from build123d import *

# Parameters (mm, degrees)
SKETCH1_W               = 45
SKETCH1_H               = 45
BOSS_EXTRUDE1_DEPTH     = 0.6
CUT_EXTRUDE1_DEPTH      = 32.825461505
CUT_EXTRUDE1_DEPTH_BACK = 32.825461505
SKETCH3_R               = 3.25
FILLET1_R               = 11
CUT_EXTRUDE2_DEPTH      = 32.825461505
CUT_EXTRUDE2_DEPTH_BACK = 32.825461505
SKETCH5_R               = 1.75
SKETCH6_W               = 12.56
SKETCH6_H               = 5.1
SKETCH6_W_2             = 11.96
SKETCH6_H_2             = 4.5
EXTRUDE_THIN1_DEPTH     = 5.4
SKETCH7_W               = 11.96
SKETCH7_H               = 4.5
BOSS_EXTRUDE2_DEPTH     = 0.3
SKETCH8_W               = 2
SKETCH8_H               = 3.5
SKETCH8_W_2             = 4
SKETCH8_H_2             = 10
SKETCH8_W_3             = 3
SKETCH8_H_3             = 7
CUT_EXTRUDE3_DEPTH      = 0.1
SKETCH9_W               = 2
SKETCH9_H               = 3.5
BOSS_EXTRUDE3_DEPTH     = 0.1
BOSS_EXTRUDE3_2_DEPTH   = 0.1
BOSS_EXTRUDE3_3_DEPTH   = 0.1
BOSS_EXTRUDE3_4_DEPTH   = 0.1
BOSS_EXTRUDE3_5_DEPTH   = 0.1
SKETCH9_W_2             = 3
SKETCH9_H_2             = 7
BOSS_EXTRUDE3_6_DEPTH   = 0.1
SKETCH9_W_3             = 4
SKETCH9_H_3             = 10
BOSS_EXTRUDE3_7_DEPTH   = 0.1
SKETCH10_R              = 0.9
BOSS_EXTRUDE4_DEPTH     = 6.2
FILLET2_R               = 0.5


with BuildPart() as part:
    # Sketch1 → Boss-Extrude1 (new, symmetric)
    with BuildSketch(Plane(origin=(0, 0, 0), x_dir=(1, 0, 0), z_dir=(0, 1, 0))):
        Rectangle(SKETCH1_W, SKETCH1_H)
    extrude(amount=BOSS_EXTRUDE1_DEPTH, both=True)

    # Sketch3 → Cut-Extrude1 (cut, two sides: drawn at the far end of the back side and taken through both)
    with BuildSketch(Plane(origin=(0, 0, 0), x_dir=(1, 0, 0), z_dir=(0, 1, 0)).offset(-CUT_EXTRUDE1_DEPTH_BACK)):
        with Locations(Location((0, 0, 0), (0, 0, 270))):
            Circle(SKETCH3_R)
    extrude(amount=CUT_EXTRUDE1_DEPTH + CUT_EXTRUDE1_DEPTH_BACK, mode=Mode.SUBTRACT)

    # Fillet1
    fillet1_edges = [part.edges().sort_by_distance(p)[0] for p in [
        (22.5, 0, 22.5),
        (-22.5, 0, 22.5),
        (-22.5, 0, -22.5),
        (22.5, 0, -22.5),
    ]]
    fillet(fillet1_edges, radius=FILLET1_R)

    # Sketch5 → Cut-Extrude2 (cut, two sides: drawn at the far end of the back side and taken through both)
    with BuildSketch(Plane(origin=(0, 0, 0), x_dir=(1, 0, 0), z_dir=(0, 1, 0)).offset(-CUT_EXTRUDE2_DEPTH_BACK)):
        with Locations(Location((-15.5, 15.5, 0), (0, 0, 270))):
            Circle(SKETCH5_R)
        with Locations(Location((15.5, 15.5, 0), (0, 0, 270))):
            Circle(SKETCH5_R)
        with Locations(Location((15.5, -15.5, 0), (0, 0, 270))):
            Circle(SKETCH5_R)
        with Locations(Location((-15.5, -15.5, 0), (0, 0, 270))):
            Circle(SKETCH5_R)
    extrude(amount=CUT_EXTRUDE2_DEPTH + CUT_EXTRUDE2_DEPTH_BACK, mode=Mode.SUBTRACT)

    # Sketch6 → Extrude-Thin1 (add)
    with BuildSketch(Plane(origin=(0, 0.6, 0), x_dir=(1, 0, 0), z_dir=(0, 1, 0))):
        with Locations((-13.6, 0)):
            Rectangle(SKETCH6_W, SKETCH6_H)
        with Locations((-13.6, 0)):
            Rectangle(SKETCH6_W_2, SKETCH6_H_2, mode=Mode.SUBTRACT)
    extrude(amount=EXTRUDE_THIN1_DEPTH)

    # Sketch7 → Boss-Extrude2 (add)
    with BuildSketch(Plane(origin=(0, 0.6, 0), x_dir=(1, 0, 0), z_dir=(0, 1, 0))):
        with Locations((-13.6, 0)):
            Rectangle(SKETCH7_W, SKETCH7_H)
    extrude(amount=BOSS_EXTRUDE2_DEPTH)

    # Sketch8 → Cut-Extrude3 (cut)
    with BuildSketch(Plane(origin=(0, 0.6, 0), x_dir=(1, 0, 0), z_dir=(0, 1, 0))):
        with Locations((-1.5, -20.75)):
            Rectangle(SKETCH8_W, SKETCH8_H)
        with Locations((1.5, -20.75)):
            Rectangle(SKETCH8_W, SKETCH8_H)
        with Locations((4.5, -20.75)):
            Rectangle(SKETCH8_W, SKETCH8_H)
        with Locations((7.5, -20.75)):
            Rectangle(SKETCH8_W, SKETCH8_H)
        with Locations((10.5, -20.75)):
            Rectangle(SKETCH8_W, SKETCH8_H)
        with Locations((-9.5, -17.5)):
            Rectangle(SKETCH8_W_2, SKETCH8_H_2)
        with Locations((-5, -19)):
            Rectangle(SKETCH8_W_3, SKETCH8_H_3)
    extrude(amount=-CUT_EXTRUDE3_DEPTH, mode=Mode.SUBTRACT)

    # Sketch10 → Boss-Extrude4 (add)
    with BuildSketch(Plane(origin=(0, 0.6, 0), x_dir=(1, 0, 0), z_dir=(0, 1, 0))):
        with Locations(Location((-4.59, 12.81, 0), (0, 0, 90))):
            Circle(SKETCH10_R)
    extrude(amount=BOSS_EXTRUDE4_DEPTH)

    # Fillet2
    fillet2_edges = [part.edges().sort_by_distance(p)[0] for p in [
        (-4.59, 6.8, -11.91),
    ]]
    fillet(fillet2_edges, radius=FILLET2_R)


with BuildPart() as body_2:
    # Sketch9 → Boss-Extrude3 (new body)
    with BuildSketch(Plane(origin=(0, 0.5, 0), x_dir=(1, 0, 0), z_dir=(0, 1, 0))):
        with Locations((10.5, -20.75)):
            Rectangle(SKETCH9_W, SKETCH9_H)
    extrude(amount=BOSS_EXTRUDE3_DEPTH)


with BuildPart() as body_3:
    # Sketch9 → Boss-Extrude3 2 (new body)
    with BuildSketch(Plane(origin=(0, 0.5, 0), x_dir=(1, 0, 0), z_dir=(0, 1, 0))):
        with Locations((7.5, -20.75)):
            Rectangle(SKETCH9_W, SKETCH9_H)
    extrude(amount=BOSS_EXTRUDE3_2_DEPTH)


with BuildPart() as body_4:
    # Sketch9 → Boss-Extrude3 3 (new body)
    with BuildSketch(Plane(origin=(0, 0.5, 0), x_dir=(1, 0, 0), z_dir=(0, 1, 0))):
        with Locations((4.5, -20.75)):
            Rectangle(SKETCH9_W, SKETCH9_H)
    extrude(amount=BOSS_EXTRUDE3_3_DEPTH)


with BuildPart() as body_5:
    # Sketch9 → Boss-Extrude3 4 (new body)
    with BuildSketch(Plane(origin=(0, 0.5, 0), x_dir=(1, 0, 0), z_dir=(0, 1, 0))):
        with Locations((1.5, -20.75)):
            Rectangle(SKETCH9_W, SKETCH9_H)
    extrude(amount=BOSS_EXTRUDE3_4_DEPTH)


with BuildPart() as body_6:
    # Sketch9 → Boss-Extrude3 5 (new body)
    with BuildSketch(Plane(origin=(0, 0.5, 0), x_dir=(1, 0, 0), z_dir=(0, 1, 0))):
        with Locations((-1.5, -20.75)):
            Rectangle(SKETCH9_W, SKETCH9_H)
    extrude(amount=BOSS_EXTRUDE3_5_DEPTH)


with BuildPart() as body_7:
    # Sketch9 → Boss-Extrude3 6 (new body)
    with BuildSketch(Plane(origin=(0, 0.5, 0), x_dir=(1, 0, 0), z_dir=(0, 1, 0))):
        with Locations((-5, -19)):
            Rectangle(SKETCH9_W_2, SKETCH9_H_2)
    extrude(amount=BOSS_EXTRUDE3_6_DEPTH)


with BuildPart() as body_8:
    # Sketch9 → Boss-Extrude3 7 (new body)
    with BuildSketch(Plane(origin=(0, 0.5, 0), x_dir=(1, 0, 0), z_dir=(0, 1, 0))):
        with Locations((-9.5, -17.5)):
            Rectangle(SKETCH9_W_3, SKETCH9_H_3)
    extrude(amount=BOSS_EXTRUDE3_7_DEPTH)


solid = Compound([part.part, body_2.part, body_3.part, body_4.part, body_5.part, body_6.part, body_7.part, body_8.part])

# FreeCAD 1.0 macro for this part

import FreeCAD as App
import Part
import Sketcher

V = App.Vector
Q = App.Units.Quantity


def edges_at(feature, points):
    """Names of the edges that pass closest to the given points."""
    edges = feature.Shape.Edges
    near = lambda p: min(range(len(edges)), key=lambda i: edges[i].distToShape(Part.Vertex(*p))[0])
    return sorted({f"Edge{near(p) + 1}" for p in points})

doc = App.newDocument("Part")
body = doc.addObject("PartDesign::Body", "Body")

sketch1 = body.newObject("Sketcher::SketchObject", "Sketch")
sketch1.AttachmentSupport = (doc.getObject("XZ_Plane"), [""])
sketch1.MapMode = "FlatFace"
sketch1.addGeometry([
    Part.LineSegment(V(-22.5, -22.5, 0), V(-22.5, 22.5, 0)),
    Part.LineSegment(V(-22.5, 22.5, 0), V(22.5, 22.5, 0)),
    Part.LineSegment(V(22.5, 22.5, 0), V(22.5, -22.5, 0)),
    Part.LineSegment(V(22.5, -22.5, 0), V(-22.5, -22.5, 0)),
], False)
sketch1.addConstraint([
    Sketcher.Constraint("Coincident", 0, 2, 1, 1),
    Sketcher.Constraint("Coincident", 1, 2, 2, 1),
    Sketcher.Constraint("Coincident", 2, 2, 3, 1),
    Sketcher.Constraint("Coincident", 3, 2, 0, 1),
    Sketcher.Constraint("Vertical", 0),
    Sketcher.Constraint("Horizontal", 1),
    Sketcher.Constraint("Vertical", 2),
    Sketcher.Constraint("Horizontal", 3),
    Sketcher.Constraint("Symmetric", 0, 2, 2, 2, -1, 1),
    Sketcher.Constraint("Equal", 3, 0),
    Sketcher.Constraint("DistanceX", 1, 1, 1, 2, Q("45 mm")),
])
pad1 = body.newObject("PartDesign::Pad", "Pad")
pad1.Profile = sketch1
pad1.Length = 1.2
pad1.Midplane = True

sketch2 = body.newObject("Sketcher::SketchObject", "Sketch001")
sketch2.AttachmentSupport = (doc.getObject("XZ_Plane"), [""])
sketch2.MapMode = "FlatFace"
sketch2.addGeometry(Part.Circle(V(0, 0, 0), V(0, 0, 1), 3.25), False)
sketch2.addConstraint([
    Sketcher.Constraint("Coincident", 0, 3, -1, 1),
    Sketcher.Constraint("Diameter", 0, Q("6.5 mm")),
])
pocket1 = body.newObject("PartDesign::Pocket", "Pocket")
pocket1.Profile = sketch2
pocket1.Type = "ThroughAll"
pocket1.Midplane = True
doc.recompute()

fillet = body.newObject("PartDesign::Fillet", "Fillet")
fillet.Base = (pocket1, edges_at(pocket1, [
    (22.5, 0, 22.5),
    (-22.5, 0, 22.5),
    (-22.5, 0, -22.5),
    (22.5, 0, -22.5),
]))
fillet.Radius = 11

sketch3 = body.newObject("Sketcher::SketchObject", "Sketch002")
sketch3.AttachmentSupport = (doc.getObject("XZ_Plane"), [""])
sketch3.MapMode = "FlatFace"
sketch3.addGeometry([
    Part.Circle(V(-15.5, -15.5, 0), V(0, 0, 1), 1.75),
    Part.Circle(V(15.5, -15.5, 0), V(0, 0, 1), 1.75),
    Part.Circle(V(15.5, 15.5, 0), V(0, 0, 1), 1.75),
    Part.Circle(V(-15.5, 15.5, 0), V(0, 0, 1), 1.75),
], False)
sketch3.addConstraint([
    Sketcher.Constraint("Equal", 0, 1),
    Sketcher.Constraint("Equal", 1, 2),
    Sketcher.Constraint("Equal", 2, 3),
    Sketcher.Constraint("Symmetric", 0, 3, 2, 3, -1, 1),
    Sketcher.Constraint("Symmetric", 1, 3, 3, 3, -1, 1),
    Sketcher.Constraint("Symmetric", 0, 3, 1, 3, -2),
    Sketcher.Constraint("Diameter", 0, Q("3.5 mm")),
    Sketcher.Constraint("DistanceX", 0, 3, 1, 3, Q("31 mm")),
    Sketcher.Constraint("DistanceY", 1, 3, 2, 3, Q("31 mm")),
])
pocket2 = body.newObject("PartDesign::Pocket", "Pocket001")
pocket2.Profile = sketch3
pocket2.Type = "ThroughAll"
pocket2.Midplane = True

sketch4 = body.newObject("Sketcher::SketchObject", "Sketch003")
sketch4.AttachmentSupport = (doc.getObject("XZ_Plane"), [""])
sketch4.MapMode = "FlatFace"
sketch4.AttachmentOffset = App.Placement(V(0, 0, -0.6), App.Rotation())
sketch4.addGeometry([
    Part.LineSegment(V(-19.88, -2.55, 0), V(-19.88, 2.55, 0)),
    Part.LineSegment(V(-19.88, 2.55, 0), V(-7.32, 2.55, 0)),
    Part.LineSegment(V(-7.32, 2.55, 0), V(-7.32, -2.55, 0)),
    Part.LineSegment(V(-7.32, -2.55, 0), V(-19.88, -2.55, 0)),
    Part.LineSegment(V(-7.62, 2.25, 0), V(-19.58, 2.25, 0)),
    Part.LineSegment(V(-19.58, 2.25, 0), V(-19.58, -2.25, 0)),
    Part.LineSegment(V(-19.58, -2.25, 0), V(-7.62, -2.25, 0)),
    Part.LineSegment(V(-7.62, -2.25, 0), V(-7.62, 2.25, 0)),
], False)
sketch4.addConstraint([
    Sketcher.Constraint("Coincident", 0, 2, 1, 1),
    Sketcher.Constraint("Coincident", 1, 2, 2, 1),
    Sketcher.Constraint("Coincident", 2, 2, 3, 1),
    Sketcher.Constraint("Coincident", 3, 2, 0, 1),
    Sketcher.Constraint("Coincident", 4, 2, 5, 1),
    Sketcher.Constraint("Coincident", 5, 2, 6, 1),
    Sketcher.Constraint("Coincident", 6, 2, 7, 1),
    Sketcher.Constraint("Coincident", 7, 2, 4, 1),
    Sketcher.Constraint("Vertical", 0),
    Sketcher.Constraint("Horizontal", 1),
    Sketcher.Constraint("Vertical", 2),
    Sketcher.Constraint("Horizontal", 3),
    Sketcher.Constraint("Horizontal", 4),
    Sketcher.Constraint("Vertical", 5),
    Sketcher.Constraint("Horizontal", 6),
    Sketcher.Constraint("Vertical", 7),
    Sketcher.Constraint("DistanceY", 0, 1, 0, 2, Q("5.1 mm")),
    Sketcher.Constraint("DistanceY", 5, 2, 5, 1, Q("4.5 mm")),
    Sketcher.Constraint("DistanceX", 1, 1, 1, 2, Q("12.56 mm")),
    Sketcher.Constraint("DistanceX", 4, 2, 4, 1, Q("11.96 mm")),
    Sketcher.Constraint("DistanceX", 0, 2, 4, 2, Q("0.3 mm")),
    Sketcher.Constraint("DistanceY", 4, 2, 0, 2, Q("0.3 mm")),
    Sketcher.Constraint("DistanceX", 0, 2, -1, 1, Q("19.88 mm")),
    Sketcher.Constraint("DistanceY", -1, 1, 0, 2, Q("2.55 mm")),
])
pad2 = body.newObject("PartDesign::Pad", "Pad001")
pad2.Profile = sketch4
pad2.Length = 5.4
pad2.Reversed = True

sketch5 = body.newObject("Sketcher::SketchObject", "Sketch004")
sketch5.AttachmentSupport = (doc.getObject("XZ_Plane"), [""])
sketch5.MapMode = "FlatFace"
sketch5.AttachmentOffset = App.Placement(V(0, 0, -0.6), App.Rotation())
sketch5.addGeometry([
    Part.LineSegment(V(-19.58, -2.25, 0), V(-19.58, 2.25, 0)),
    Part.LineSegment(V(-19.58, 2.25, 0), V(-7.62, 2.25, 0)),
    Part.LineSegment(V(-7.62, 2.25, 0), V(-7.62, -2.25, 0)),
    Part.LineSegment(V(-7.62, -2.25, 0), V(-19.58, -2.25, 0)),
], False)
sketch5.addConstraint([
    Sketcher.Constraint("Coincident", 0, 2, 1, 1),
    Sketcher.Constraint("Coincident", 1, 2, 2, 1),
    Sketcher.Constraint("Coincident", 2, 2, 3, 1),
    Sketcher.Constraint("Coincident", 3, 2, 0, 1),
    Sketcher.Constraint("Vertical", 0),
    Sketcher.Constraint("Horizontal", 1),
    Sketcher.Constraint("Vertical", 2),
    Sketcher.Constraint("Horizontal", 3),
    Sketcher.Constraint("DistanceY", 0, 1, 0, 2, Q("4.5 mm")),
    Sketcher.Constraint("DistanceX", 1, 1, 1, 2, Q("11.96 mm")),
    Sketcher.Constraint("DistanceX", 0, 2, -1, 1, Q("19.58 mm")),
    Sketcher.Constraint("DistanceY", -1, 1, 0, 2, Q("2.25 mm")),
])
pad3 = body.newObject("PartDesign::Pad", "Pad002")
pad3.Profile = sketch5
pad3.Length = 0.3
pad3.Reversed = True

sketch6 = body.newObject("Sketcher::SketchObject", "Sketch005")
sketch6.AttachmentSupport = (doc.getObject("XZ_Plane"), [""])
sketch6.MapMode = "FlatFace"
sketch6.AttachmentOffset = App.Placement(V(0, 0, -0.6), App.Rotation())
sketch6.addGeometry([
    Part.LineSegment(V(-2.5, 19, 0), V(-2.5, 22.5, 0)),
    Part.LineSegment(V(-2.5, 22.5, 0), V(-0.5, 22.5, 0)),
    Part.LineSegment(V(-0.5, 22.5, 0), V(-0.5, 19, 0)),
    Part.LineSegment(V(-0.5, 19, 0), V(-2.5, 19, 0)),
    Part.LineSegment(V(0.5, 19, 0), V(0.5, 22.5, 0)),
    Part.LineSegment(V(0.5, 22.5, 0), V(2.5, 22.5, 0)),
    Part.LineSegment(V(2.5, 22.5, 0), V(2.5, 19, 0)),
    Part.LineSegment(V(2.5, 19, 0), V(0.5, 19, 0)),
    Part.LineSegment(V(3.5, 19, 0), V(3.5, 22.5, 0)),
    Part.LineSegment(V(3.5, 22.5, 0), V(5.5, 22.5, 0)),
    Part.LineSegment(V(5.5, 22.5, 0), V(5.5, 19, 0)),
    Part.LineSegment(V(5.5, 19, 0), V(3.5, 19, 0)),
    Part.LineSegment(V(6.5, 19, 0), V(6.5, 22.5, 0)),
    Part.LineSegment(V(6.5, 22.5, 0), V(8.5, 22.5, 0)),
    Part.LineSegment(V(8.5, 22.5, 0), V(8.5, 19, 0)),
    Part.LineSegment(V(8.5, 19, 0), V(6.5, 19, 0)),
    Part.LineSegment(V(9.5, 19, 0), V(9.5, 22.5, 0)),
    Part.LineSegment(V(9.5, 22.5, 0), V(11.5, 22.5, 0)),
    Part.LineSegment(V(11.5, 22.5, 0), V(11.5, 19, 0)),
    Part.LineSegment(V(11.5, 19, 0), V(9.5, 19, 0)),
    Part.LineSegment(V(-11.5, 12.5, 0), V(-11.5, 22.5, 0)),
    Part.LineSegment(V(-11.5, 22.5, 0), V(-7.5, 22.5, 0)),
    Part.LineSegment(V(-7.5, 22.5, 0), V(-7.5, 12.5, 0)),
    Part.LineSegment(V(-7.5, 12.5, 0), V(-11.5, 12.5, 0)),
    Part.LineSegment(V(-6.5, 15.5, 0), V(-6.5, 22.5, 0)),
    Part.LineSegment(V(-6.5, 22.5, 0), V(-3.5, 22.5, 0)),
    Part.LineSegment(V(-3.5, 22.5, 0), V(-3.5, 15.5, 0)),
    Part.LineSegment(V(-3.5, 15.5, 0), V(-6.5, 15.5, 0)),
], False)
sketch6.addConstraint([
    Sketcher.Constraint("Coincident", 0, 2, 1, 1),
    Sketcher.Constraint("Coincident", 1, 2, 2, 1),
    Sketcher.Constraint("Coincident", 2, 2, 3, 1),
    Sketcher.Constraint("Coincident", 3, 2, 0, 1),
    Sketcher.Constraint("Coincident", 4, 2, 5, 1),
    Sketcher.Constraint("Coincident", 5, 2, 6, 1),
    Sketcher.Constraint("Coincident", 6, 2, 7, 1),
    Sketcher.Constraint("Coincident", 7, 2, 4, 1),
    Sketcher.Constraint("Coincident", 8, 2, 9, 1),
    Sketcher.Constraint("Coincident", 9, 2, 10, 1),
    Sketcher.Constraint("Coincident", 10, 2, 11, 1),
    Sketcher.Constraint("Coincident", 11, 2, 8, 1),
    Sketcher.Constraint("Coincident", 12, 2, 13, 1),
    Sketcher.Constraint("Coincident", 13, 2, 14, 1),
    Sketcher.Constraint("Coincident", 14, 2, 15, 1),
    Sketcher.Constraint("Coincident", 15, 2, 12, 1),
    Sketcher.Constraint("Coincident", 16, 2, 17, 1),
    Sketcher.Constraint("Coincident", 17, 2, 18, 1),
    Sketcher.Constraint("Coincident", 18, 2, 19, 1),
    Sketcher.Constraint("Coincident", 19, 2, 16, 1),
    Sketcher.Constraint("Coincident", 20, 2, 21, 1),
    Sketcher.Constraint("Coincident", 21, 2, 22, 1),
    Sketcher.Constraint("Coincident", 22, 2, 23, 1),
    Sketcher.Constraint("Coincident", 23, 2, 20, 1),
    Sketcher.Constraint("Coincident", 24, 2, 25, 1),
    Sketcher.Constraint("Coincident", 25, 2, 26, 1),
    Sketcher.Constraint("Coincident", 26, 2, 27, 1),
    Sketcher.Constraint("Coincident", 27, 2, 24, 1),
    Sketcher.Constraint("Vertical", 0),
    Sketcher.Constraint("Horizontal", 1),
    Sketcher.Constraint("Vertical", 2),
    Sketcher.Constraint("Horizontal", 3),
    Sketcher.Constraint("Vertical", 4),
    Sketcher.Constraint("Horizontal", 5),
    Sketcher.Constraint("Vertical", 6),
    Sketcher.Constraint("Horizontal", 7),
    Sketcher.Constraint("Vertical", 8),
    Sketcher.Constraint("Horizontal", 9),
    Sketcher.Constraint("Vertical", 10),
    Sketcher.Constraint("Horizontal", 11),
    Sketcher.Constraint("Vertical", 12),
    Sketcher.Constraint("Horizontal", 13),
    Sketcher.Constraint("Vertical", 14),
    Sketcher.Constraint("Horizontal", 15),
    Sketcher.Constraint("Vertical", 16),
    Sketcher.Constraint("Horizontal", 17),
    Sketcher.Constraint("Vertical", 18),
    Sketcher.Constraint("Horizontal", 19),
    Sketcher.Constraint("Vertical", 20),
    Sketcher.Constraint("Horizontal", 21),
    Sketcher.Constraint("Vertical", 22),
    Sketcher.Constraint("Horizontal", 23),
    Sketcher.Constraint("Vertical", 24),
    Sketcher.Constraint("Horizontal", 25),
    Sketcher.Constraint("Vertical", 26),
    Sketcher.Constraint("Horizontal", 27),
    Sketcher.Constraint("Symmetric", 1, 2, 4, 2, -2),
    Sketcher.Constraint("Symmetric", 3, 2, 6, 2, -2),
    Sketcher.Constraint("Symmetric", 17, 2, 20, 2, -2),
    Sketcher.Constraint("Symmetric", 12, 2, 24, 2, -2),
    Sketcher.Constraint("Symmetric", 8, 2, 25, 2, -2),
    Sketcher.Constraint("Horizontal", 5, 2, 8, 2),
    Sketcher.Constraint("Horizontal", 7, 2, 10, 2),
    Sketcher.Constraint("Horizontal", 11, 2, 14, 2),
    Sketcher.Constraint("Horizontal", 13, 2, 16, 2),
    Sketcher.Constraint("Horizontal", 15, 2, 18, 2),
    Sketcher.Constraint("Equal", 7, 9),
    Sketcher.Constraint("Equal", 11, 13),
    Sketcher.Constraint("Equal", 15, 17),
    Sketcher.Constraint("DistanceX", 1, 1, 1, 2, Q("2 mm")),
    Sketcher.Constraint("DistanceX", 21, 1, 21, 2, Q("4 mm")),
    Sketcher.Constraint("DistanceX", 25, 1, 25, 2, Q("3 mm")),
    Sketcher.Constraint("DistanceY", 20, 1, 20, 2, Q("10 mm")),
    Sketcher.Constraint("DistanceY", 24, 1, 24, 2, Q("7 mm")),
    Sketcher.Constraint("DistanceY", 0, 1, 0, 2, Q("3.5 mm")),
    Sketcher.Constraint("DistanceY", -1, 1, 2, 2, Q("19 mm")),
    Sketcher.Constraint("DistanceX", 1, 2, 4, 2, Q("1 mm")),
    Sketcher.Constraint("DistanceX", 5, 2, 8, 2, Q("1 mm")),
    Sketcher.Constraint("DistanceX", 13, 2, 16, 2, Q("1 mm")),
])
pocket3 = body.newObject("PartDesign::Pocket", "Pocket002")
pocket3.Profile = sketch6
pocket3.Length = 0.1
pocket3.Reversed = True

sketch7 = body.newObject("Sketcher::SketchObject", "Sketch006")
sketch7.AttachmentSupport = (doc.getObject("XZ_Plane"), [""])
sketch7.MapMode = "FlatFace"
sketch7.AttachmentOffset = App.Placement(V(0, 0, -0.6), App.Rotation())
sketch7.addGeometry(Part.Circle(V(-4.59, -12.81, 0), V(0, 0, 1), 0.9), False)
sketch7.addConstraint([
    Sketcher.Constraint("Diameter", 0, Q("1.8 mm")),
    Sketcher.Constraint("DistanceX", 0, 3, -1, 1, Q("4.59 mm")),
    Sketcher.Constraint("DistanceY", 0, 3, -1, 1, Q("12.81 mm")),
])
pad4 = body.newObject("PartDesign::Pad", "Pad003")
pad4.Profile = sketch7
pad4.Length = 6.2
pad4.Reversed = True
doc.recompute()

fillet2 = body.newObject("PartDesign::Fillet", "Fillet001")
fillet2.Base = (pad4, edges_at(pad4, [(-4.59, 6.8, -11.91)]))
fillet2.Radius = 0.5
body2 = doc.addObject("PartDesign::Body", "Body001")

sketch8 = body2.newObject("Sketcher::SketchObject", "Sketch007")
sketch8.AttachmentSupport = (doc.getObject("XZ_Plane001"), [""])
sketch8.MapMode = "FlatFace"
sketch8.AttachmentOffset = App.Placement(V(0, 0, -0.5), App.Rotation())
sketch8.addGeometry([
    Part.LineSegment(V(9.5, 19, 0), V(9.5, 22.5, 0)),
    Part.LineSegment(V(9.5, 22.5, 0), V(11.5, 22.5, 0)),
    Part.LineSegment(V(11.5, 22.5, 0), V(11.5, 19, 0)),
    Part.LineSegment(V(11.5, 19, 0), V(9.5, 19, 0)),
], False)
sketch8.addConstraint([
    Sketcher.Constraint("Coincident", 0, 2, 1, 1),
    Sketcher.Constraint("Coincident", 1, 2, 2, 1),
    Sketcher.Constraint("Coincident", 2, 2, 3, 1),
    Sketcher.Constraint("Coincident", 3, 2, 0, 1),
    Sketcher.Constraint("Vertical", 0),
    Sketcher.Constraint("Horizontal", 1),
    Sketcher.Constraint("Vertical", 2),
    Sketcher.Constraint("Horizontal", 3),
    Sketcher.Constraint("DistanceX", 1, 1, 1, 2, Q("2 mm")),
    Sketcher.Constraint("DistanceY", 0, 1, 0, 2, Q("3.5 mm")),
    Sketcher.Constraint("DistanceY", -1, 1, 2, 2, Q("19 mm")),
    Sketcher.Constraint("DistanceX", -1, 1, 0, 2, Q("9.5 mm")),
])
pad5 = body2.newObject("PartDesign::Pad", "Pad004")
pad5.Profile = sketch8
pad5.Length = 0.1
pad5.Reversed = True
body3 = doc.addObject("PartDesign::Body", "Body002")

sketch9 = body3.newObject("Sketcher::SketchObject", "Sketch008")
sketch9.AttachmentSupport = (doc.getObject("XZ_Plane002"), [""])
sketch9.MapMode = "FlatFace"
sketch9.AttachmentOffset = App.Placement(V(0, 0, -0.5), App.Rotation())
sketch9.addGeometry([
    Part.LineSegment(V(6.5, 19, 0), V(6.5, 22.5, 0)),
    Part.LineSegment(V(6.5, 22.5, 0), V(8.5, 22.5, 0)),
    Part.LineSegment(V(8.5, 22.5, 0), V(8.5, 19, 0)),
    Part.LineSegment(V(8.5, 19, 0), V(6.5, 19, 0)),
], False)
sketch9.addConstraint([
    Sketcher.Constraint("Coincident", 0, 2, 1, 1),
    Sketcher.Constraint("Coincident", 1, 2, 2, 1),
    Sketcher.Constraint("Coincident", 2, 2, 3, 1),
    Sketcher.Constraint("Coincident", 3, 2, 0, 1),
    Sketcher.Constraint("Vertical", 0),
    Sketcher.Constraint("Horizontal", 1),
    Sketcher.Constraint("Vertical", 2),
    Sketcher.Constraint("Horizontal", 3),
    Sketcher.Constraint("DistanceX", 1, 1, 1, 2, Q("2 mm")),
    Sketcher.Constraint("DistanceY", 0, 1, 0, 2, Q("3.5 mm")),
    Sketcher.Constraint("DistanceY", -1, 1, 2, 2, Q("19 mm")),
    Sketcher.Constraint("DistanceX", -1, 1, 0, 2, Q("6.5 mm")),
])
pad6 = body3.newObject("PartDesign::Pad", "Pad005")
pad6.Profile = sketch9
pad6.Length = 0.1
pad6.Reversed = True
body4 = doc.addObject("PartDesign::Body", "Body003")

sketch10 = body4.newObject("Sketcher::SketchObject", "Sketch009")
sketch10.AttachmentSupport = (doc.getObject("XZ_Plane003"), [""])
sketch10.MapMode = "FlatFace"
sketch10.AttachmentOffset = App.Placement(V(0, 0, -0.5), App.Rotation())
sketch10.addGeometry([
    Part.LineSegment(V(3.5, 19, 0), V(3.5, 22.5, 0)),
    Part.LineSegment(V(3.5, 22.5, 0), V(5.5, 22.5, 0)),
    Part.LineSegment(V(5.5, 22.5, 0), V(5.5, 19, 0)),
    Part.LineSegment(V(5.5, 19, 0), V(3.5, 19, 0)),
], False)
sketch10.addConstraint([
    Sketcher.Constraint("Coincident", 0, 2, 1, 1),
    Sketcher.Constraint("Coincident", 1, 2, 2, 1),
    Sketcher.Constraint("Coincident", 2, 2, 3, 1),
    Sketcher.Constraint("Coincident", 3, 2, 0, 1),
    Sketcher.Constraint("Vertical", 0),
    Sketcher.Constraint("Horizontal", 1),
    Sketcher.Constraint("Vertical", 2),
    Sketcher.Constraint("Horizontal", 3),
    Sketcher.Constraint("DistanceX", 1, 1, 1, 2, Q("2 mm")),
    Sketcher.Constraint("DistanceY", 0, 1, 0, 2, Q("3.5 mm")),
    Sketcher.Constraint("DistanceY", -1, 1, 2, 2, Q("19 mm")),
    Sketcher.Constraint("DistanceX", -1, 1, 0, 2, Q("3.5 mm")),
])
pad7 = body4.newObject("PartDesign::Pad", "Pad006")
pad7.Profile = sketch10
pad7.Length = 0.1
pad7.Reversed = True
body5 = doc.addObject("PartDesign::Body", "Body004")

sketch11 = body5.newObject("Sketcher::SketchObject", "Sketch010")
sketch11.AttachmentSupport = (doc.getObject("XZ_Plane004"), [""])
sketch11.MapMode = "FlatFace"
sketch11.AttachmentOffset = App.Placement(V(0, 0, -0.5), App.Rotation())
sketch11.addGeometry([
    Part.LineSegment(V(0.5, 19, 0), V(0.5, 22.5, 0)),
    Part.LineSegment(V(0.5, 22.5, 0), V(2.5, 22.5, 0)),
    Part.LineSegment(V(2.5, 22.5, 0), V(2.5, 19, 0)),
    Part.LineSegment(V(2.5, 19, 0), V(0.5, 19, 0)),
], False)
sketch11.addConstraint([
    Sketcher.Constraint("Coincident", 0, 2, 1, 1),
    Sketcher.Constraint("Coincident", 1, 2, 2, 1),
    Sketcher.Constraint("Coincident", 2, 2, 3, 1),
    Sketcher.Constraint("Coincident", 3, 2, 0, 1),
    Sketcher.Constraint("Vertical", 0),
    Sketcher.Constraint("Horizontal", 1),
    Sketcher.Constraint("Vertical", 2),
    Sketcher.Constraint("Horizontal", 3),
    Sketcher.Constraint("DistanceX", 1, 1, 1, 2, Q("2 mm")),
    Sketcher.Constraint("DistanceY", 0, 1, 0, 2, Q("3.5 mm")),
    Sketcher.Constraint("DistanceY", -1, 1, 2, 2, Q("19 mm")),
    Sketcher.Constraint("DistanceX", -1, 1, 0, 2, Q("0.5 mm")),
])
pad8 = body5.newObject("PartDesign::Pad", "Pad007")
pad8.Profile = sketch11
pad8.Length = 0.1
pad8.Reversed = True
body6 = doc.addObject("PartDesign::Body", "Body005")

sketch12 = body6.newObject("Sketcher::SketchObject", "Sketch011")
sketch12.AttachmentSupport = (doc.getObject("XZ_Plane005"), [""])
sketch12.MapMode = "FlatFace"
sketch12.AttachmentOffset = App.Placement(V(0, 0, -0.5), App.Rotation())
sketch12.addGeometry([
    Part.LineSegment(V(-2.5, 19, 0), V(-2.5, 22.5, 0)),
    Part.LineSegment(V(-2.5, 22.5, 0), V(-0.5, 22.5, 0)),
    Part.LineSegment(V(-0.5, 22.5, 0), V(-0.5, 19, 0)),
    Part.LineSegment(V(-0.5, 19, 0), V(-2.5, 19, 0)),
], False)
sketch12.addConstraint([
    Sketcher.Constraint("Coincident", 0, 2, 1, 1),
    Sketcher.Constraint("Coincident", 1, 2, 2, 1),
    Sketcher.Constraint("Coincident", 2, 2, 3, 1),
    Sketcher.Constraint("Coincident", 3, 2, 0, 1),
    Sketcher.Constraint("Vertical", 0),
    Sketcher.Constraint("Horizontal", 1),
    Sketcher.Constraint("Vertical", 2),
    Sketcher.Constraint("Horizontal", 3),
    Sketcher.Constraint("DistanceX", 1, 1, 1, 2, Q("2 mm")),
    Sketcher.Constraint("DistanceY", 0, 1, 0, 2, Q("3.5 mm")),
    Sketcher.Constraint("DistanceY", -1, 1, 2, 2, Q("19 mm")),
    Sketcher.Constraint("DistanceX", 0, 2, -1, 1, Q("2.5 mm")),
])
pad9 = body6.newObject("PartDesign::Pad", "Pad008")
pad9.Profile = sketch12
pad9.Length = 0.1
pad9.Reversed = True
body7 = doc.addObject("PartDesign::Body", "Body006")

sketch13 = body7.newObject("Sketcher::SketchObject", "Sketch012")
sketch13.AttachmentSupport = (doc.getObject("XZ_Plane006"), [""])
sketch13.MapMode = "FlatFace"
sketch13.AttachmentOffset = App.Placement(V(0, 0, -0.5), App.Rotation())
sketch13.addGeometry([
    Part.LineSegment(V(-6.5, 15.5, 0), V(-6.5, 22.5, 0)),
    Part.LineSegment(V(-6.5, 22.5, 0), V(-3.5, 22.5, 0)),
    Part.LineSegment(V(-3.5, 22.5, 0), V(-3.5, 15.5, 0)),
    Part.LineSegment(V(-3.5, 15.5, 0), V(-6.5, 15.5, 0)),
], False)
sketch13.addConstraint([
    Sketcher.Constraint("Coincident", 0, 2, 1, 1),
    Sketcher.Constraint("Coincident", 1, 2, 2, 1),
    Sketcher.Constraint("Coincident", 2, 2, 3, 1),
    Sketcher.Constraint("Coincident", 3, 2, 0, 1),
    Sketcher.Constraint("Vertical", 0),
    Sketcher.Constraint("Horizontal", 1),
    Sketcher.Constraint("Vertical", 2),
    Sketcher.Constraint("Horizontal", 3),
    Sketcher.Constraint("DistanceX", 1, 1, 1, 2, Q("3 mm")),
    Sketcher.Constraint("DistanceY", 0, 1, 0, 2, Q("7 mm")),
    Sketcher.Constraint("DistanceX", 0, 2, -1, 1, Q("6.5 mm")),
    Sketcher.Constraint("DistanceY", -1, 1, 0, 2, Q("22.5 mm")),
])
pad10 = body7.newObject("PartDesign::Pad", "Pad009")
pad10.Profile = sketch13
pad10.Length = 0.1
pad10.Reversed = True
body8 = doc.addObject("PartDesign::Body", "Body007")

sketch14 = body8.newObject("Sketcher::SketchObject", "Sketch013")
sketch14.AttachmentSupport = (doc.getObject("XZ_Plane007"), [""])
sketch14.MapMode = "FlatFace"
sketch14.AttachmentOffset = App.Placement(V(0, 0, -0.5), App.Rotation())
sketch14.addGeometry([
    Part.LineSegment(V(-11.5, 12.5, 0), V(-11.5, 22.5, 0)),
    Part.LineSegment(V(-11.5, 22.5, 0), V(-7.5, 22.5, 0)),
    Part.LineSegment(V(-7.5, 22.5, 0), V(-7.5, 12.5, 0)),
    Part.LineSegment(V(-7.5, 12.5, 0), V(-11.5, 12.5, 0)),
], False)
sketch14.addConstraint([
    Sketcher.Constraint("Coincident", 0, 2, 1, 1),
    Sketcher.Constraint("Coincident", 1, 2, 2, 1),
    Sketcher.Constraint("Coincident", 2, 2, 3, 1),
    Sketcher.Constraint("Coincident", 3, 2, 0, 1),
    Sketcher.Constraint("Vertical", 0),
    Sketcher.Constraint("Horizontal", 1),
    Sketcher.Constraint("Vertical", 2),
    Sketcher.Constraint("Horizontal", 3),
    Sketcher.Constraint("DistanceX", 1, 1, 1, 2, Q("4 mm")),
    Sketcher.Constraint("DistanceY", 0, 1, 0, 2, Q("10 mm")),
    Sketcher.Constraint("DistanceX", 0, 2, -1, 1, Q("11.5 mm")),
    Sketcher.Constraint("DistanceY", -1, 1, 0, 2, Q("22.5 mm")),
])
pad11 = body8.newObject("PartDesign::Pad", "Pad010")
pad11.Profile = sketch14
pad11.Length = 0.1
pad11.Reversed = True

doc.recompute()
